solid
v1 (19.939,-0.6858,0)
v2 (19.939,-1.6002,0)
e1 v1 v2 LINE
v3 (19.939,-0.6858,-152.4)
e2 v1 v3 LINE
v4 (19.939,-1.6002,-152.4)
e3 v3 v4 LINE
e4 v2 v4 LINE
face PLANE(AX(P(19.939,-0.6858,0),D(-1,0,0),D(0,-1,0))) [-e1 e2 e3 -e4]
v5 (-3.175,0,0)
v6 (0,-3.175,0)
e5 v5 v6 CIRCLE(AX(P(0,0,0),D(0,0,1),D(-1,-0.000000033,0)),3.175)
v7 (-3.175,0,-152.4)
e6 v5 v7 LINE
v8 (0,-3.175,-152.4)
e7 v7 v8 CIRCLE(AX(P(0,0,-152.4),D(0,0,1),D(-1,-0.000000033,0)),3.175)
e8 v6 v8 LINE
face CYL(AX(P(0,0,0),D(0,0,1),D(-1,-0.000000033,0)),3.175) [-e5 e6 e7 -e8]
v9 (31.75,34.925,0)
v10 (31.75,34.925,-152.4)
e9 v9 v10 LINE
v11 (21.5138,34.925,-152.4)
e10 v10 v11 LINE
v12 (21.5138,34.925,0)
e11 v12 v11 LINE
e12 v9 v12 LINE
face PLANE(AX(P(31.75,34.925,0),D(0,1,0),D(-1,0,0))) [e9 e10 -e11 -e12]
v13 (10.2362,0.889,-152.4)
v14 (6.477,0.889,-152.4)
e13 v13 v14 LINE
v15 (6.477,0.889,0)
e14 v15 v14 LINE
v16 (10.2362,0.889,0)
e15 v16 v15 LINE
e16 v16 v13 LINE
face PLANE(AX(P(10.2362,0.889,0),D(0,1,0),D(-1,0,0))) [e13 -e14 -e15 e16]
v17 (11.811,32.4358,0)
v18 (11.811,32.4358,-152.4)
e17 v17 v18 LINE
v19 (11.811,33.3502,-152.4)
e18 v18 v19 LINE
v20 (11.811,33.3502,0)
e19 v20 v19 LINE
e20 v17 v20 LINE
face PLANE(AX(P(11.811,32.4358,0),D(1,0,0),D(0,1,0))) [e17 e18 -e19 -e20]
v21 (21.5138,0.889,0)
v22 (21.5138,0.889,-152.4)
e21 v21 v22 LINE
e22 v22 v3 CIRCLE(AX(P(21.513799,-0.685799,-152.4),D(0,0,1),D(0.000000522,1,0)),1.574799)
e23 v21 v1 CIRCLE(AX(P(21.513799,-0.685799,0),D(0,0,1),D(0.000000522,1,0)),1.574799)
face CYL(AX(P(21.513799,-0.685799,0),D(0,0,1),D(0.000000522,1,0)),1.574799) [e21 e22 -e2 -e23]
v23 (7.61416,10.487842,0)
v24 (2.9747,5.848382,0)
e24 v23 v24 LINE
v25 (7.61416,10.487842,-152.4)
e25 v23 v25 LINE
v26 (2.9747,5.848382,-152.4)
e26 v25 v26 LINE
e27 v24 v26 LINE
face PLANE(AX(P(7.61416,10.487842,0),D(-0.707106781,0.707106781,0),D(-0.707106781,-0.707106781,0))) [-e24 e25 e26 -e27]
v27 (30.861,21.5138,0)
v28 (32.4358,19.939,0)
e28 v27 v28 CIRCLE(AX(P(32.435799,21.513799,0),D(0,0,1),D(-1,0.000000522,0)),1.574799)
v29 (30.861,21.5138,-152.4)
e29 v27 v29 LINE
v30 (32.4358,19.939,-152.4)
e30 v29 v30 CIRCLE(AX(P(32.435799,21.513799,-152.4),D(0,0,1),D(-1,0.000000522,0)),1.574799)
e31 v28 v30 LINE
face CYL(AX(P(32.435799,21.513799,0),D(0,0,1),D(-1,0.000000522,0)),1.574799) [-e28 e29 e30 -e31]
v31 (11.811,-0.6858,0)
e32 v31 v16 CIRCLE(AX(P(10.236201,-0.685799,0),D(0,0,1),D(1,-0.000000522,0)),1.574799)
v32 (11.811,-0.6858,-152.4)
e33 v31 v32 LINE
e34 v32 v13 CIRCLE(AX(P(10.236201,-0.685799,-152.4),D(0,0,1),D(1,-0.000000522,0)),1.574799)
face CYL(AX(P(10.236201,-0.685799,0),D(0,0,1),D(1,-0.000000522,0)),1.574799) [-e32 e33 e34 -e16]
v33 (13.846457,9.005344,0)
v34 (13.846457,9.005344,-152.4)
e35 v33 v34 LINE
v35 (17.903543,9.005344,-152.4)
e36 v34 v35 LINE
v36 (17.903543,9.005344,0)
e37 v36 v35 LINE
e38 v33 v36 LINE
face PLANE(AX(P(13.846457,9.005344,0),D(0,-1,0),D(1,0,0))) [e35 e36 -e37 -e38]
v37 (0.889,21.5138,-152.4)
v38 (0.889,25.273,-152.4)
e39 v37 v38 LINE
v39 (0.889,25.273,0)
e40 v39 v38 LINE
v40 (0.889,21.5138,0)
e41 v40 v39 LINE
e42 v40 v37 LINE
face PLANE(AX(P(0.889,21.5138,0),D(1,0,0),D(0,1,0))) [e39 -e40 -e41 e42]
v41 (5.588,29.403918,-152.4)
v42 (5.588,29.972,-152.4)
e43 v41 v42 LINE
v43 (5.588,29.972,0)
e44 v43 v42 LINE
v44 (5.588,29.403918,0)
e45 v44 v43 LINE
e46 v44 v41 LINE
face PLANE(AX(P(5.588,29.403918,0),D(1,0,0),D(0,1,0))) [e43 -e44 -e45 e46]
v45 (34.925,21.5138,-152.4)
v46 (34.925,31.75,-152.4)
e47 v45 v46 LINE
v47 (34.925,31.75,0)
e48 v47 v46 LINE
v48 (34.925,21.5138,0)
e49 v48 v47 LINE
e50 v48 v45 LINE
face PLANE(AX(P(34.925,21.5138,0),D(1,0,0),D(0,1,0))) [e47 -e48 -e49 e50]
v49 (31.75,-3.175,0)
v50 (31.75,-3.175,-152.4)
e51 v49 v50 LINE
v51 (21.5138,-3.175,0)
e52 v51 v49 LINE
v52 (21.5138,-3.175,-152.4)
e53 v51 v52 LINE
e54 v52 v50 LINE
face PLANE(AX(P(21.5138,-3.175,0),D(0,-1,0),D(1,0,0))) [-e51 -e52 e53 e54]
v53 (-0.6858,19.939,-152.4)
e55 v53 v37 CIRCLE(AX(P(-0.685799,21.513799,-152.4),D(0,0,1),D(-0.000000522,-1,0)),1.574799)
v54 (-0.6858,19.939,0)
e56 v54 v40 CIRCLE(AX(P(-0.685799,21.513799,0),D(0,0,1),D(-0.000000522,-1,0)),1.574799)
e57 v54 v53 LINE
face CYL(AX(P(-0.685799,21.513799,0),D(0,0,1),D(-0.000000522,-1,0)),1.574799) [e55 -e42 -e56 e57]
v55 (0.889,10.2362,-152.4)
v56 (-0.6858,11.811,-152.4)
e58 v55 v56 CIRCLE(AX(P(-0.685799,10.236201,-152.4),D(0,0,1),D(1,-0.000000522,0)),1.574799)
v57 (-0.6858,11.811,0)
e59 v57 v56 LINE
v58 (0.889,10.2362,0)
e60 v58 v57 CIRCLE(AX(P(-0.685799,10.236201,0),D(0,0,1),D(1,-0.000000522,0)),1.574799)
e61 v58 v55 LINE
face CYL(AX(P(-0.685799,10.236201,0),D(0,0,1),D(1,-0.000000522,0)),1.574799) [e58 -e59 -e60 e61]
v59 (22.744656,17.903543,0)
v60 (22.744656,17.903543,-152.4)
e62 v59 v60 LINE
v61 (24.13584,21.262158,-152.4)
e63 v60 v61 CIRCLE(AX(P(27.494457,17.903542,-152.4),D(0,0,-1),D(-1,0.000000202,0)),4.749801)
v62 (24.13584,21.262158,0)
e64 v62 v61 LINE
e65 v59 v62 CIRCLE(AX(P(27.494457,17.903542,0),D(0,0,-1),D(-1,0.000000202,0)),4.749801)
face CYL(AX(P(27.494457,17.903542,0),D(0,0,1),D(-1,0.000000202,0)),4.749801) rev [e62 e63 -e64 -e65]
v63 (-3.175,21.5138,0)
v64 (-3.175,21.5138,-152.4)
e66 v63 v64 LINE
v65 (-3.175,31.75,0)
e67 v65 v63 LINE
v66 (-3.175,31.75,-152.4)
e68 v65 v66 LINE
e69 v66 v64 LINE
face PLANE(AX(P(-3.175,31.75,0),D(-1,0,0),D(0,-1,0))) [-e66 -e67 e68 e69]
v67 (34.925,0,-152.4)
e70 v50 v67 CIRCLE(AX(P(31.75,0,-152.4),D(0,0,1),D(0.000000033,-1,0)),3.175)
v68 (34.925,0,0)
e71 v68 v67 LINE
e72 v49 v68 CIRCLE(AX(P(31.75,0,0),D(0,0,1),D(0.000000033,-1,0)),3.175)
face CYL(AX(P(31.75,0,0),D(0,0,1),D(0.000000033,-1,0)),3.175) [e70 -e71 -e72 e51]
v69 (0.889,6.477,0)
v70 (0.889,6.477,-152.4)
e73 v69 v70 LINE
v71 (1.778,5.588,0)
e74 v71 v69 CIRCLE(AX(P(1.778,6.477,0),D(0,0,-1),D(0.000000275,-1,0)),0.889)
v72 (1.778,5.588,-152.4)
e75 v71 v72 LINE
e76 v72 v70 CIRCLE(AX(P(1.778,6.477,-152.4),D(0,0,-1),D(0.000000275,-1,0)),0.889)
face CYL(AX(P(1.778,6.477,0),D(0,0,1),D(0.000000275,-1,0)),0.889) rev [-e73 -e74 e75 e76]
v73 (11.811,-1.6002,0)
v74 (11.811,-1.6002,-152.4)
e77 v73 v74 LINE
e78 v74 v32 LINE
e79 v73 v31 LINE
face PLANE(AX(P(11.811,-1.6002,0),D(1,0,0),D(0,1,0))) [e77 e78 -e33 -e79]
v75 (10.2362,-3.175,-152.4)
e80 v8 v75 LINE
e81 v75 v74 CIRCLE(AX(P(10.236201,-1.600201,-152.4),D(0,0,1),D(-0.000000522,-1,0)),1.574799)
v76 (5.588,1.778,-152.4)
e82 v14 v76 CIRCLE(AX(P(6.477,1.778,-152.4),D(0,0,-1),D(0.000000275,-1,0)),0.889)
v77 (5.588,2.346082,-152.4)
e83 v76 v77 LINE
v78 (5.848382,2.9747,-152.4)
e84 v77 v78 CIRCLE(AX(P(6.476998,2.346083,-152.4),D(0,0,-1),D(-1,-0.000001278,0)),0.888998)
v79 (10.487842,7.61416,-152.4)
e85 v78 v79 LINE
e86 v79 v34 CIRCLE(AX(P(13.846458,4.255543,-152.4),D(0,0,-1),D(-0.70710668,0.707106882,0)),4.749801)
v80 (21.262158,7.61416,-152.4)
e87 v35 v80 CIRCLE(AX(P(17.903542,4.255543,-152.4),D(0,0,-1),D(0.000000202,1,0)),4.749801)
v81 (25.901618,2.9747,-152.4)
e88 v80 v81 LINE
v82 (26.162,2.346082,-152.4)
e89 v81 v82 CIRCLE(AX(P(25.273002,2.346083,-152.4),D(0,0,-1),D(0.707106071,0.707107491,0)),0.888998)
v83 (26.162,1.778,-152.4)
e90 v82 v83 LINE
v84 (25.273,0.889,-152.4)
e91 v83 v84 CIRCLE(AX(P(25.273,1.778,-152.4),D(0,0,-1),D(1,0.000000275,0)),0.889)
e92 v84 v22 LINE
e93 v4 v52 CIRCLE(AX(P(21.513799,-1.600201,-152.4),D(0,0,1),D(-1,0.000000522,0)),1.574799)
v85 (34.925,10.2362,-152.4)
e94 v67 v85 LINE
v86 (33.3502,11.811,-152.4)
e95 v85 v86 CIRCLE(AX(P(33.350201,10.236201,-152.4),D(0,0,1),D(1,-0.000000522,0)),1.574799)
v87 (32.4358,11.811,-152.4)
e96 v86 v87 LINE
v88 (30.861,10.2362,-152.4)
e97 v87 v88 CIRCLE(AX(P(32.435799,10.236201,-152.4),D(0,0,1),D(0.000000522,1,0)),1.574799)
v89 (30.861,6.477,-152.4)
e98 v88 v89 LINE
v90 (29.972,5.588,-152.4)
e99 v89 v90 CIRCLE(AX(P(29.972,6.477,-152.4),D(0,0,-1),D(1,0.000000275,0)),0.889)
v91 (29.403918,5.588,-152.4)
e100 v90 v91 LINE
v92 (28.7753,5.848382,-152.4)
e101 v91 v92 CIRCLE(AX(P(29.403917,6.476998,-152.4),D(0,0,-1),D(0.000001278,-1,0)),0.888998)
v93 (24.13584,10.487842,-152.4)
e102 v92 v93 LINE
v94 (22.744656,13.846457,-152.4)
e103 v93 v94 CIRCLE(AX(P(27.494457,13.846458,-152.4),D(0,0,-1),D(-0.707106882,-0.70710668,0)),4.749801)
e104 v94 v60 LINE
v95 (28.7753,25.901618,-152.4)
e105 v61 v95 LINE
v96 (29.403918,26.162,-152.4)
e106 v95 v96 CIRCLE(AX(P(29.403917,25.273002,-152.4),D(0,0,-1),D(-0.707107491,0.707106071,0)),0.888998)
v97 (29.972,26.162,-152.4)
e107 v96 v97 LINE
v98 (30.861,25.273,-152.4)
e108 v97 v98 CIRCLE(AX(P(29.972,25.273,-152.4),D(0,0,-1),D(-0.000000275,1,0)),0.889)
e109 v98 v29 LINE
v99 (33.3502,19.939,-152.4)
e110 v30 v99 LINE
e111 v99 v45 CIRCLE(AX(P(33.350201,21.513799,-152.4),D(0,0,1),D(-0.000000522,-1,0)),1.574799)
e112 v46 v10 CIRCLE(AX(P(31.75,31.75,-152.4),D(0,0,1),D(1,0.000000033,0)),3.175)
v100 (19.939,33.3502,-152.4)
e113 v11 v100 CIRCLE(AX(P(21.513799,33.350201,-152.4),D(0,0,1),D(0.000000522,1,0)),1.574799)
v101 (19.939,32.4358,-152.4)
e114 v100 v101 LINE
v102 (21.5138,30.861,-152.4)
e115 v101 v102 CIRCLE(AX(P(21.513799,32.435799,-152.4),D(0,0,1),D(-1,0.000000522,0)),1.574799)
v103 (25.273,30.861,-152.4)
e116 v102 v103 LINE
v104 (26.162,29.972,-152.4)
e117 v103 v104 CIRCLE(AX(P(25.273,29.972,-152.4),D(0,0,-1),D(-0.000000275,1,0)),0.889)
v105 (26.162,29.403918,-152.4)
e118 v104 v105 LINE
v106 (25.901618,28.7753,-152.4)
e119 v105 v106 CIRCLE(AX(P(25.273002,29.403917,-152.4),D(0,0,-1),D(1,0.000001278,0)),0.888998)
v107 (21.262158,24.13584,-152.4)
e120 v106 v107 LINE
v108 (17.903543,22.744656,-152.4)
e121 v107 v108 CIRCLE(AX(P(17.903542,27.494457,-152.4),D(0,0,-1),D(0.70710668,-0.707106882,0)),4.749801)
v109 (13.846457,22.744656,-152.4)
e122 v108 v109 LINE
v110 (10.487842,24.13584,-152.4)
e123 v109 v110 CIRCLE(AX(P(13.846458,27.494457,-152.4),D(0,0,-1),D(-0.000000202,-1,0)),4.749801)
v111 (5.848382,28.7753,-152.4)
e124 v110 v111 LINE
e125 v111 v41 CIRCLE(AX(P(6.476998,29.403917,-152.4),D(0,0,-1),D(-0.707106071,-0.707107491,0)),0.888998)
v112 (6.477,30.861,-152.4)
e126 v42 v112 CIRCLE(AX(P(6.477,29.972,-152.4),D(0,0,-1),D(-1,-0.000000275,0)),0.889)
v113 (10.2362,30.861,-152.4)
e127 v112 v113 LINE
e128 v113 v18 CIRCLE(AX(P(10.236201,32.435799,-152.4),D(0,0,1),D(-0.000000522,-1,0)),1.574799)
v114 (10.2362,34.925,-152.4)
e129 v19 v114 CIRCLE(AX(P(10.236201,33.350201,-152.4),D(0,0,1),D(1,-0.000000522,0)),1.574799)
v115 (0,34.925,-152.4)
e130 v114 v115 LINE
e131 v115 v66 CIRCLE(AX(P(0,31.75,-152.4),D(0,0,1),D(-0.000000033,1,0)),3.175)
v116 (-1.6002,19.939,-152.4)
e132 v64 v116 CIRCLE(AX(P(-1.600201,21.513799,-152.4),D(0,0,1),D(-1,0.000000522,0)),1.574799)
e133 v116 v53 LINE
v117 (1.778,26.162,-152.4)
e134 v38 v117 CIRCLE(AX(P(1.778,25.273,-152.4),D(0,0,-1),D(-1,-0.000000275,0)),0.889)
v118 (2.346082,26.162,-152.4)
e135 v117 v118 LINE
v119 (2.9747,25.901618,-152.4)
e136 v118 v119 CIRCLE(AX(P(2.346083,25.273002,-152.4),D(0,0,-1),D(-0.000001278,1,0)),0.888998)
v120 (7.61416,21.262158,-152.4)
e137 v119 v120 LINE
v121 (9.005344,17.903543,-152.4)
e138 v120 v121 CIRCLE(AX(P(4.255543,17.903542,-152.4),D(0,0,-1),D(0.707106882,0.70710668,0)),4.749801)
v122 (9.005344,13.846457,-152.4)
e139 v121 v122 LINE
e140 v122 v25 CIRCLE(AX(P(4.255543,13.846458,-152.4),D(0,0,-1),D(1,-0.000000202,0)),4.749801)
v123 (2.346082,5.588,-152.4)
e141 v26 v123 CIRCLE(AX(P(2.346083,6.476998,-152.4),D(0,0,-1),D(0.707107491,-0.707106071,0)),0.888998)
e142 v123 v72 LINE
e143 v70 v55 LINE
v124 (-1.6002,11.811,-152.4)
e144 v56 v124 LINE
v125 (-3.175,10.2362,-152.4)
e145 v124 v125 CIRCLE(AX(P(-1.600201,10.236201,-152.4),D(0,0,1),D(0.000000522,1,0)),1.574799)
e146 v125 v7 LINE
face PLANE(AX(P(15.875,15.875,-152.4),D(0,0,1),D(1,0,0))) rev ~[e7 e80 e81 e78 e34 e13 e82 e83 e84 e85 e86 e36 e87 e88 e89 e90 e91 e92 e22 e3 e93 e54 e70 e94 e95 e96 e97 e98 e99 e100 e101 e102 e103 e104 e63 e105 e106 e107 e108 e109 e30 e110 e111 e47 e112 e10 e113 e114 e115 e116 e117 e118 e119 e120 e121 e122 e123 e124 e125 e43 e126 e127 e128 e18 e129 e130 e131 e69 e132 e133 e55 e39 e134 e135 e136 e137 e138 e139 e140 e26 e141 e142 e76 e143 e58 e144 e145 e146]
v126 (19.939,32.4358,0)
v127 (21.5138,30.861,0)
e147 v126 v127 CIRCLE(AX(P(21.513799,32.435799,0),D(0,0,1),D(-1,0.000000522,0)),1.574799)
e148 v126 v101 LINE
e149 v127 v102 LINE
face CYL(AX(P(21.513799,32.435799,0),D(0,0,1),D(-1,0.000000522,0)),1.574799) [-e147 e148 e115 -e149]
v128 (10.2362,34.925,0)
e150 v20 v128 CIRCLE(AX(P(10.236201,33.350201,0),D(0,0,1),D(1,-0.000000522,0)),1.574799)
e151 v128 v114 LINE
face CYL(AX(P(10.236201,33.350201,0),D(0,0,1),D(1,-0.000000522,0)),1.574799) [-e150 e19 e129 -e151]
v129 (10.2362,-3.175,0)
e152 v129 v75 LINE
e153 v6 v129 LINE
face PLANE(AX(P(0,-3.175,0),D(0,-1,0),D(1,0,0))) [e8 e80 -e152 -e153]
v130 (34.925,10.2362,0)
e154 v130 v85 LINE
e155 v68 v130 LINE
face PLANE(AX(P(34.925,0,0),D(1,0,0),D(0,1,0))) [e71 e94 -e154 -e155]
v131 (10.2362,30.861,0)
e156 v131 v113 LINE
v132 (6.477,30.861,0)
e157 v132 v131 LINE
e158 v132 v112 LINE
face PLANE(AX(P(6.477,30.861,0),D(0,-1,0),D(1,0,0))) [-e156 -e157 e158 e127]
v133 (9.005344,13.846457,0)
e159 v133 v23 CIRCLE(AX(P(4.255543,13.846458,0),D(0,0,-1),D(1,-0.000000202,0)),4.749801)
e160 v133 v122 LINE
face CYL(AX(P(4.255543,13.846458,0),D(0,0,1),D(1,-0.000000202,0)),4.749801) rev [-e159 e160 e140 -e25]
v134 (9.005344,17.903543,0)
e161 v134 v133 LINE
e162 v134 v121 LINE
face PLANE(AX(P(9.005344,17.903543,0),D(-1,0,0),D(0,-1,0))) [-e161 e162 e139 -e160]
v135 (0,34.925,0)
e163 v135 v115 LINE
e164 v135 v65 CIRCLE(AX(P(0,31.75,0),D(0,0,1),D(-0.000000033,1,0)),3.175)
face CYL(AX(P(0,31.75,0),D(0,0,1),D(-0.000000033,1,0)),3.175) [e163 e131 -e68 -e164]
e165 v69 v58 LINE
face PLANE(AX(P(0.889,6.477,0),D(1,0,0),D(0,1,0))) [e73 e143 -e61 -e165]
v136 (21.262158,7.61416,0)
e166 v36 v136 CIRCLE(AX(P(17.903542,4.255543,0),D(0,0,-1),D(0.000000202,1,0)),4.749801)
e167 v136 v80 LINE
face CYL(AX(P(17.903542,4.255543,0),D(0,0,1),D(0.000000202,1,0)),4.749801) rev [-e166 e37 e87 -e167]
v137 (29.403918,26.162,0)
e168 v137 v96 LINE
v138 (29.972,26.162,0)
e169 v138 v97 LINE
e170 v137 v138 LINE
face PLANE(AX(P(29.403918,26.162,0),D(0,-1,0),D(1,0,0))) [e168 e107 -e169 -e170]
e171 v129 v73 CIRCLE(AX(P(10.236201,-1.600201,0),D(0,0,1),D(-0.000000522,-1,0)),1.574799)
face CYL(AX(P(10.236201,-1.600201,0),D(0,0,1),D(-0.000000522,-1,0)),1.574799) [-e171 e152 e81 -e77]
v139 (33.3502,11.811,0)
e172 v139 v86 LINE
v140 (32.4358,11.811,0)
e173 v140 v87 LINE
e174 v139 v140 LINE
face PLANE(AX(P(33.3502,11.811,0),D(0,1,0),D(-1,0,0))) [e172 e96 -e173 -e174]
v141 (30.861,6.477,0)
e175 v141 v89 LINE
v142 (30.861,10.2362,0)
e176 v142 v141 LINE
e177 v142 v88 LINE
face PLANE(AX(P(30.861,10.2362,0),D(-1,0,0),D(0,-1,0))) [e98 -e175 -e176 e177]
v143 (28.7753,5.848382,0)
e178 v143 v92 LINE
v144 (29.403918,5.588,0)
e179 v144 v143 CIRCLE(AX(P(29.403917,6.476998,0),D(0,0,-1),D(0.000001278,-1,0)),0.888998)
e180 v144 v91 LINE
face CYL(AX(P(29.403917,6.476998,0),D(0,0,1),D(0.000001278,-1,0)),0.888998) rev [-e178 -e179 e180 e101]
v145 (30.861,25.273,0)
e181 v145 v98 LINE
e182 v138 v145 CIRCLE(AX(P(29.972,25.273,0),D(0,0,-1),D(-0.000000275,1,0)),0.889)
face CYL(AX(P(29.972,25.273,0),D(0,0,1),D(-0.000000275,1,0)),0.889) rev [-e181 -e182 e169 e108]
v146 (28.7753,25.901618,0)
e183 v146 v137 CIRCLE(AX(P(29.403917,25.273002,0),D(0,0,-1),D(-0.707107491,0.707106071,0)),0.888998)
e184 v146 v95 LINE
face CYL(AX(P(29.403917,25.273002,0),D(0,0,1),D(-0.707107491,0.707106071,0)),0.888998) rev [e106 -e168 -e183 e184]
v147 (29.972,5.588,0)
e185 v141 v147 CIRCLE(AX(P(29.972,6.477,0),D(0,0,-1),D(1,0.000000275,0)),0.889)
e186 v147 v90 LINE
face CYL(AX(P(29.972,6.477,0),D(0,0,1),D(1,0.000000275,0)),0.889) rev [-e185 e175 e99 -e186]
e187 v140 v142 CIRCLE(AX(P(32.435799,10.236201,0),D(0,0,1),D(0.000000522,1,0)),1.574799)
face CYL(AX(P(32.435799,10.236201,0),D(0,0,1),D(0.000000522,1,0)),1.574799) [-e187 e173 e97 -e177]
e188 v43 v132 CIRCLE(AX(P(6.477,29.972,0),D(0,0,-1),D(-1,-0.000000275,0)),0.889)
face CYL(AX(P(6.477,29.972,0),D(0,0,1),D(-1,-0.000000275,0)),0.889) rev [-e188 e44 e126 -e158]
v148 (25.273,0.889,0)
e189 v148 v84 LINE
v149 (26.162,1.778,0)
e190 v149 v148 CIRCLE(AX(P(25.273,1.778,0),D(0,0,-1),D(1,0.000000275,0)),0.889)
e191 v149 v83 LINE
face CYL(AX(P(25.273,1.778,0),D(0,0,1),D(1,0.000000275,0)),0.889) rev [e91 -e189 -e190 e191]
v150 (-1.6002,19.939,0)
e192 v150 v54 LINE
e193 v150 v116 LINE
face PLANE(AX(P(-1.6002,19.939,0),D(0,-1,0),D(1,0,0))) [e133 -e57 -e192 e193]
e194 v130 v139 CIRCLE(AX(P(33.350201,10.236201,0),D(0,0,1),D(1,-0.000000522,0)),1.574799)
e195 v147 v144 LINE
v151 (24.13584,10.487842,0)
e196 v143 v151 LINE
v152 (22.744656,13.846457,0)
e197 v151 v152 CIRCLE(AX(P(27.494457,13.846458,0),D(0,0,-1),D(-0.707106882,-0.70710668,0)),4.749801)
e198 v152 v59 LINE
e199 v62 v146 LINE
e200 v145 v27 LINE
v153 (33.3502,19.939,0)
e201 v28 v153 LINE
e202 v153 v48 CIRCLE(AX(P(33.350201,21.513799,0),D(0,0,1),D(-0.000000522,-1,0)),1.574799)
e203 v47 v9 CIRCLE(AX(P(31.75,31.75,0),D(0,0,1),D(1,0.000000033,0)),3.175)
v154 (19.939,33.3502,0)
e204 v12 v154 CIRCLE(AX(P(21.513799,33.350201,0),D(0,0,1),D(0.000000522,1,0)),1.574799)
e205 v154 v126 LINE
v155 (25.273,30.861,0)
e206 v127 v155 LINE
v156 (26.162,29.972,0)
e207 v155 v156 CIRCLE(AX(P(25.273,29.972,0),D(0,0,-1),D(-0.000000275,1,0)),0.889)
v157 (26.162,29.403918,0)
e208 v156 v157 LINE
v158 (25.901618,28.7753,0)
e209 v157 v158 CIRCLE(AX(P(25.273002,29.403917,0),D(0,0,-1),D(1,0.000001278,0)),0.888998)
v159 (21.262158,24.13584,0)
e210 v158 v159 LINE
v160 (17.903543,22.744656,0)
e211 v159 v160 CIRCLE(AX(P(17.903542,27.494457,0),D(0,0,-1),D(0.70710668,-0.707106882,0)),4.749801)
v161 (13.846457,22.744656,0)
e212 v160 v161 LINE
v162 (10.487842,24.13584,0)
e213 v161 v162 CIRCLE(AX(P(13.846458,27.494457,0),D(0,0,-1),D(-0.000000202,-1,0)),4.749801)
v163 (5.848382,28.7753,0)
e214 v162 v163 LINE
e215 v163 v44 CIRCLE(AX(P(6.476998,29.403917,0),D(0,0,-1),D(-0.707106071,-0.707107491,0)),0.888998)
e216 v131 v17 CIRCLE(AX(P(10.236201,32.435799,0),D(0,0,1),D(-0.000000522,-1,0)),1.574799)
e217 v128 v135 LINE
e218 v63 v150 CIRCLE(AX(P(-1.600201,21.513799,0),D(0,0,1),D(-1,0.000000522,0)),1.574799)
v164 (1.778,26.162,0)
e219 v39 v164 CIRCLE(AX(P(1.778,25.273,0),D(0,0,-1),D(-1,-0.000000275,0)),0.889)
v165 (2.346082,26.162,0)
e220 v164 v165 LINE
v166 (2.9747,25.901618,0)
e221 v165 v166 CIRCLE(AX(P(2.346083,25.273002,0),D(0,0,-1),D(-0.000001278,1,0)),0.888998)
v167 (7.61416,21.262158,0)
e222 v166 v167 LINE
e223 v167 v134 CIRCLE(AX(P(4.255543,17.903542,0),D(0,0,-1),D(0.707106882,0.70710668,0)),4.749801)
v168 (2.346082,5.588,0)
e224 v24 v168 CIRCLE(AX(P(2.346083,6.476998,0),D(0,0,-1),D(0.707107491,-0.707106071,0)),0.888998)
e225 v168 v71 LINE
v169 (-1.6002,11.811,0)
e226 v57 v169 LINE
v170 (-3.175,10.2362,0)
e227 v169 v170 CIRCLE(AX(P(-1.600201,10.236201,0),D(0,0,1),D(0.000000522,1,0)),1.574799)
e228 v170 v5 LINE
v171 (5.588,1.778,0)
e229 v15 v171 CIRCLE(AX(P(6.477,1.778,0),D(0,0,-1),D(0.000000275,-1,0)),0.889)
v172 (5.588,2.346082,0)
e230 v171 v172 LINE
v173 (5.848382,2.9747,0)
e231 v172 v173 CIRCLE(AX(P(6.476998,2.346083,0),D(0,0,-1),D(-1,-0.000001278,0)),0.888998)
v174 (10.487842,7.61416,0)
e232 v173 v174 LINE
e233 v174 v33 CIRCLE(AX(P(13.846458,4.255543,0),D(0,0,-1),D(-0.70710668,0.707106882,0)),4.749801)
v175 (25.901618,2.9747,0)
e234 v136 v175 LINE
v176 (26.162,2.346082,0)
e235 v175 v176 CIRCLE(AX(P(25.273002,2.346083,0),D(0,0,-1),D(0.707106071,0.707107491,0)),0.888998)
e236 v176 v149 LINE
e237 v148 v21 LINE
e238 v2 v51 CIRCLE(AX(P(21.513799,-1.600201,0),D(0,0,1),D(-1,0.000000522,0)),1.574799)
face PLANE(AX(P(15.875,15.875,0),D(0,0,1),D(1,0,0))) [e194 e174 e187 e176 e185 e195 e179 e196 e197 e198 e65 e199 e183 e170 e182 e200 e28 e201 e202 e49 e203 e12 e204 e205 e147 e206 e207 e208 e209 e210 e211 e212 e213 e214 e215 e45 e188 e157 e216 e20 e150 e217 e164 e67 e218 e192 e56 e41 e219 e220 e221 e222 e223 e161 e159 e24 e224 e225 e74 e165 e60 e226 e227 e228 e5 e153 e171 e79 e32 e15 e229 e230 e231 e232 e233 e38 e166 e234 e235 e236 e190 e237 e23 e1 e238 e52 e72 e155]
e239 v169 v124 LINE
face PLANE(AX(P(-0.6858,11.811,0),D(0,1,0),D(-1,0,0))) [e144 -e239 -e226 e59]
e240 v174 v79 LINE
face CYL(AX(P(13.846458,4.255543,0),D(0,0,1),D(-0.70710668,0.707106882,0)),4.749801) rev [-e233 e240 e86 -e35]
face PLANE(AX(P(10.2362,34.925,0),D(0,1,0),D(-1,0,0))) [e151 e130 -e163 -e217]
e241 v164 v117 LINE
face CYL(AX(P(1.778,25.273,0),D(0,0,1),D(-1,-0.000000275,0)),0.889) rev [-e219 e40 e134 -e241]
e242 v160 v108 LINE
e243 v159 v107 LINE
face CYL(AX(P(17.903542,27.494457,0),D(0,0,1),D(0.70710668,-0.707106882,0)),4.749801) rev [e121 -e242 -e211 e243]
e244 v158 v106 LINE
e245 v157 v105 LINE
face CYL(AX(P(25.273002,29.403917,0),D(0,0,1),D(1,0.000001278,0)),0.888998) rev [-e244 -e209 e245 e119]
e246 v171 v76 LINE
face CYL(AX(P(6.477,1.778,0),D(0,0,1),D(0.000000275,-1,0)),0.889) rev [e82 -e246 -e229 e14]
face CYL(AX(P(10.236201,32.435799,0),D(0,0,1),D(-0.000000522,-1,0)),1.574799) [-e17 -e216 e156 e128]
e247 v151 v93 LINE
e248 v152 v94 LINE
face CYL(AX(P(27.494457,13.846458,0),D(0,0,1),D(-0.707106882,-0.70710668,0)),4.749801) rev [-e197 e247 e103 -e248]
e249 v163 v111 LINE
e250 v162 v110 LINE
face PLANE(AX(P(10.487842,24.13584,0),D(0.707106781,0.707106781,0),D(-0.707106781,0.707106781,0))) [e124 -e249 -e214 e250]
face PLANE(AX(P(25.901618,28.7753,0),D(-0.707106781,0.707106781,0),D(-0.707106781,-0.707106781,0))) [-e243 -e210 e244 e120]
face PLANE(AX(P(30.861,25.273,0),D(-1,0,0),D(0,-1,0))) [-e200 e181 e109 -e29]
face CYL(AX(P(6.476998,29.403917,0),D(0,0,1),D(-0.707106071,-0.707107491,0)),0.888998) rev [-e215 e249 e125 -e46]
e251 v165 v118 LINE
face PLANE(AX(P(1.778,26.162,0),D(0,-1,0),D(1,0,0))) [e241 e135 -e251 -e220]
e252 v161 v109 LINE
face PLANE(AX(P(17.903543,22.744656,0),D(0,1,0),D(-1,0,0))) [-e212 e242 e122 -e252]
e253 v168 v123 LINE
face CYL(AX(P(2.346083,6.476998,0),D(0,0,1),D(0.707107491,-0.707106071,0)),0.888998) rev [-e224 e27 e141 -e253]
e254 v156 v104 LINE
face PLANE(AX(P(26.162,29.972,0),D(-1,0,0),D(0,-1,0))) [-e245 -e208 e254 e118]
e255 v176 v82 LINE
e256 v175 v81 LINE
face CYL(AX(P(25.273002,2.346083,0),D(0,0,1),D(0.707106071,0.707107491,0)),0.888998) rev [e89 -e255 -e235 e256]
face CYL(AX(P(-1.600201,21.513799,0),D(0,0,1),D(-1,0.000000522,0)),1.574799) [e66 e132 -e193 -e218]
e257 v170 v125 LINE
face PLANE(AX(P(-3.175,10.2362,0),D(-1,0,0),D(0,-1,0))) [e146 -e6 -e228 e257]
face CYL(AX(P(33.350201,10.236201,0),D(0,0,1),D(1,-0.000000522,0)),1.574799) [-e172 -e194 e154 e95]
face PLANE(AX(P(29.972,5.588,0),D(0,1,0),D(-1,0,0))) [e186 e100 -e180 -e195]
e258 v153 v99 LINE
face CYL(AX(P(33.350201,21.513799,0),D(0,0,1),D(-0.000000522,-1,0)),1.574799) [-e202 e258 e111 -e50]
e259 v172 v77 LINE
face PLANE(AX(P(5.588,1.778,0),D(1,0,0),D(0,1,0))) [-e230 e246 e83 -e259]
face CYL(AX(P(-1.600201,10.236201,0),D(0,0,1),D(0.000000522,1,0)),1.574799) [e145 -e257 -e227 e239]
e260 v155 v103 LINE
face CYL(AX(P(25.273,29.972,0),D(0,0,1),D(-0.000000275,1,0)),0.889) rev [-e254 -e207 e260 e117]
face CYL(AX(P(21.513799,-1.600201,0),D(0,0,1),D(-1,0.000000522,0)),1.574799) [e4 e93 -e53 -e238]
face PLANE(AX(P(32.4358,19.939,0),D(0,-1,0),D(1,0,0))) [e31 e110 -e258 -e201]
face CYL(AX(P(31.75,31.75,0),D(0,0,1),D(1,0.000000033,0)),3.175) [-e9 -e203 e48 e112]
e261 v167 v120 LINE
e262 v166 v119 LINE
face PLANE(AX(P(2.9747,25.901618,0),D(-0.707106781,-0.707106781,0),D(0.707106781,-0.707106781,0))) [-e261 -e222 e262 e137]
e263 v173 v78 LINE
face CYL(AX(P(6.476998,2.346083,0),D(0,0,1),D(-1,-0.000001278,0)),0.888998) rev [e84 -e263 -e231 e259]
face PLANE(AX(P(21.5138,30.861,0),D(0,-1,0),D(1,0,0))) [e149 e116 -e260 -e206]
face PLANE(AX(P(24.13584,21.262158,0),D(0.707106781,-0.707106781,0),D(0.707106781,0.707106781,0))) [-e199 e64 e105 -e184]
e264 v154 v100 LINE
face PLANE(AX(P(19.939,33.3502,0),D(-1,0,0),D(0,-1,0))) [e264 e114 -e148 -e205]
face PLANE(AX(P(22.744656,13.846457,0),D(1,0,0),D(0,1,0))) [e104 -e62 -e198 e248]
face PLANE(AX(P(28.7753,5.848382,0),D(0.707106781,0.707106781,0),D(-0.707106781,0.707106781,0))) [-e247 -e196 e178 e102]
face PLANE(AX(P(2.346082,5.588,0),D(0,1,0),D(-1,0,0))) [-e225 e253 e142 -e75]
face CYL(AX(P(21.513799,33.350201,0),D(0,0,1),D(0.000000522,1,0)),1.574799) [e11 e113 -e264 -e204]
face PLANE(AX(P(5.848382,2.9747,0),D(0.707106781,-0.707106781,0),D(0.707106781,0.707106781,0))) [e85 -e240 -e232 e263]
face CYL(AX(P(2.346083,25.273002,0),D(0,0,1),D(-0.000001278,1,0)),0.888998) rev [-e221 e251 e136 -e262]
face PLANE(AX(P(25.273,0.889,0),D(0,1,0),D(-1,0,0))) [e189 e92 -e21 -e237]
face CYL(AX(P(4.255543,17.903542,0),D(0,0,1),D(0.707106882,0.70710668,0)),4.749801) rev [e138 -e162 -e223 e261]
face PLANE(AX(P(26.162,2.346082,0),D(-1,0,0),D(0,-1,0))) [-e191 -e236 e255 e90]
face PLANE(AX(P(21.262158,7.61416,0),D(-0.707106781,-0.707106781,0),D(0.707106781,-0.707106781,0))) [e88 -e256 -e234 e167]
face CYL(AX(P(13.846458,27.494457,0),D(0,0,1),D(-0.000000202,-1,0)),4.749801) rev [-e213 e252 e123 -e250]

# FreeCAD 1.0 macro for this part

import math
import FreeCAD as App
import Part
import Sketcher
from FreeCAD import Vector
Q = App.Units.Quantity

doc = App.newDocument("Part")
body = doc.addObject("PartDesign::Body", "Body")

# Sketch on XY plane
sketch1 = body.newObject("Sketcher::SketchObject", "Sketch")
sketch1.AttachmentSupport = (doc.getObject("XY_Plane"), [""])
sketch1.MapMode = "FlatFace"
sketch1.addGeometry(Part.ArcOfCircle(Part.Circle(Vector(0, 31.7, 0), Vector(0, 0, 1), 3.2), math.radians(90), math.radians(180)), False)
sketch1.addGeometry(Part.LineSegment(Vector(-3.2, 31.8, 0), Vector(-3.2, 21.5, 0)), False)
sketch1.addGeometry(Part.ArcOfCircle(Part.Circle(Vector(-1.6, 21.5, 0), Vector(0, 0, 1), 1.6), math.radians(180), math.radians(270)), False)
sketch1.addGeometry(Part.LineSegment(Vector(-1.6, 19.9, 0), Vector(-0.7, 19.9, 0)), False)
sketch1.addGeometry(Part.ArcOfCircle(Part.Circle(Vector(-0.7, 21.5, 0), Vector(0, 0, 1), 1.6), math.radians(-90), math.radians(0)), False)
sketch1.addGeometry(Part.LineSegment(Vector(0.9, 21.5, 0), Vector(0.9, 25.3, 0)), False)
sketch1.addGeometry(Part.ArcOfCircle(Part.Circle(Vector(1.8, 25.3, 0), Vector(0, 0, 1), 0.9), math.radians(90), math.radians(180)), False)
sketch1.addGeometry(Part.LineSegment(Vector(1.8, 26.2, 0), Vector(2.3, 26.2, 0)), False)
sketch1.addGeometry(Part.ArcOfCircle(Part.Circle(Vector(2.3, 25.3, 0), Vector(0, 0, 1), 0.9), math.radians(45), math.radians(90)), False)
sketch1.addGeometry(Part.LineSegment(Vector(3, 25.9, 0), Vector(7.6, 21.3, 0)), False)
sketch1.addGeometry(Part.ArcOfCircle(Part.Circle(Vector(4.3, 17.9, 0), Vector(0, 0, 1), 4.7), math.radians(0), math.radians(45)), False)
sketch1.addGeometry(Part.LineSegment(Vector(9, 17.9, 0), Vector(9, 13.8, 0)), False)
sketch1.addGeometry(Part.ArcOfCircle(Part.Circle(Vector(4.3, 13.8, 0), Vector(0, 0, 1), 4.7), math.radians(-45), math.radians(0)), False)
sketch1.addGeometry(Part.LineSegment(Vector(7.6, 10.5, 0), Vector(3, 5.8, 0)), False)
sketch1.addGeometry(Part.ArcOfCircle(Part.Circle(Vector(2.3, 6.5, 0), Vector(0, 0, 1), 0.9), math.radians(-90), math.radians(-45)), False)
sketch1.addGeometry(Part.LineSegment(Vector(2.3, 5.6, 0), Vector(1.8, 5.6, 0)), False)
sketch1.addGeometry(Part.ArcOfCircle(Part.Circle(Vector(1.8, 6.5, 0), Vector(0, 0, 1), 0.9), math.radians(180), math.radians(270)), False)
sketch1.addGeometry(Part.LineSegment(Vector(0.9, 6.5, 0), Vector(0.9, 10.2, 0)), False)
sketch1.addGeometry(Part.ArcOfCircle(Part.Circle(Vector(-0.7, 10.2, 0), Vector(0, 0, 1), 1.6), math.radians(0), math.radians(90)), False)
sketch1.addGeometry(Part.LineSegment(Vector(-0.7, 11.8, 0), Vector(-1.6, 11.8, 0)), False)
sketch1.addGeometry(Part.ArcOfCircle(Part.Circle(Vector(-1.6, 10.2, 0), Vector(0, 0, 1), 1.6), math.radians(90), math.radians(180)), False)
sketch1.addGeometry(Part.LineSegment(Vector(-3.2, 10.2, 0), Vector(-3.2, 0, 0)), False)
sketch1.addGeometry(Part.ArcOfCircle(Part.Circle(Vector(0, 0, 0), Vector(0, 0, 1), 3.2), math.radians(-180), math.radians(-90)), False)
sketch1.addGeometry(Part.LineSegment(Vector(0, -3.2, 0), Vector(10.2, -3.2, 0)), False)
sketch1.addGeometry(Part.ArcOfCircle(Part.Circle(Vector(10.2, -1.6, 0), Vector(0, 0, 1), 1.6), math.radians(-90), math.radians(0)), False)
sketch1.addGeometry(Part.LineSegment(Vector(11.8, -1.6, 0), Vector(11.8, -0.7, 0)), False)
sketch1.addGeometry(Part.ArcOfCircle(Part.Circle(Vector(10.2, -0.7, 0), Vector(0, 0, 1), 1.6), math.radians(0), math.radians(90)), False)
sketch1.addGeometry(Part.LineSegment(Vector(10.2, 0.9, 0), Vector(6.5, 0.9, 0)), False)
sketch1.addGeometry(Part.ArcOfCircle(Part.Circle(Vector(6.5, 1.8, 0), Vector(0, 0, 1), 0.9), math.radians(180), math.radians(270)), False)
sketch1.addGeometry(Part.LineSegment(Vector(5.6, 1.8, 0), Vector(5.6, 2.3, 0)), False)
sketch1.addGeometry(Part.ArcOfCircle(Part.Circle(Vector(6.5, 2.3, 0), Vector(0, 0, 1), 0.9), math.radians(135), math.radians(180)), False)
sketch1.addGeometry(Part.LineSegment(Vector(5.8, 3, 0), Vector(10.5, 7.6, 0)), False)
sketch1.addGeometry(Part.ArcOfCircle(Part.Circle(Vector(13.8, 4.3, 0), Vector(0, 0, 1), 4.7), math.radians(90), math.radians(135)), False)
sketch1.addGeometry(Part.LineSegment(Vector(13.8, 9, 0), Vector(17.9, 9, 0)), False)
sketch1.addGeometry(Part.ArcOfCircle(Part.Circle(Vector(17.9, 4.3, 0), Vector(0, 0, 1), 4.7), math.radians(45), math.radians(90)), False)
sketch1.addGeometry(Part.LineSegment(Vector(21.3, 7.6, 0), Vector(25.9, 3, 0)), False)
sketch1.addGeometry(Part.ArcOfCircle(Part.Circle(Vector(25.3, 2.3, 0), Vector(0, 0, 1), 0.9), math.radians(0), math.radians(45)), False)
sketch1.addGeometry(Part.LineSegment(Vector(26.2, 2.3, 0), Vector(26.2, 1.8, 0)), False)
sketch1.addGeometry(Part.ArcOfCircle(Part.Circle(Vector(25.3, 1.8, 0), Vector(0, 0, 1), 0.9), math.radians(-90), math.radians(0)), False)
sketch1.addGeometry(Part.LineSegment(Vector(25.3, 0.9, 0), Vector(21.5, 0.9, 0)), False)
sketch1.addGeometry(Part.ArcOfCircle(Part.Circle(Vector(21.5, -0.7, 0), Vector(0, 0, 1), 1.6), math.radians(90), math.radians(180)), False)
sketch1.addGeometry(Part.LineSegment(Vector(19.9, -0.7, 0), Vector(19.9, -1.6, 0)), False)
sketch1.addGeometry(Part.ArcOfCircle(Part.Circle(Vector(21.5, -1.6, 0), Vector(0, 0, 1), 1.6), math.radians(180), math.radians(270)), False)
sketch1.addGeometry(Part.LineSegment(Vector(21.5, -3.2, 0), Vector(31.8, -3.2, 0)), False)
sketch1.addGeometry(Part.ArcOfCircle(Part.Circle(Vector(31.7, 0, 0), Vector(0, 0, 1), 3.2), math.radians(-90), math.radians(0)), False)
sketch1.addGeometry(Part.LineSegment(Vector(34.9, 0, 0), Vector(34.9, 10.2, 0)), False)
sketch1.addGeometry(Part.ArcOfCircle(Part.Circle(Vector(33.4, 10.2, 0), Vector(0, 0, 1), 1.6), math.radians(0), math.radians(90)), False)
sketch1.addGeometry(Part.LineSegment(Vector(33.4, 11.8, 0), Vector(32.4, 11.8, 0)), False)
sketch1.addGeometry(Part.ArcOfCircle(Part.Circle(Vector(32.4, 10.2, 0), Vector(0, 0, 1), 1.6), math.radians(90), math.radians(180)), False)
sketch1.addGeometry(Part.LineSegment(Vector(30.9, 10.2, 0), Vector(30.9, 6.5, 0)), False)
sketch1.addGeometry(Part.ArcOfCircle(Part.Circle(Vector(30, 6.5, 0), Vector(0, 0, 1), 0.9), math.radians(-90), math.radians(0)), False)
sketch1.addGeometry(Part.LineSegment(Vector(30, 5.6, 0), Vector(29.4, 5.6, 0)), False)
sketch1.addGeometry(Part.ArcOfCircle(Part.Circle(Vector(29.4, 6.5, 0), Vector(0, 0, 1), 0.9), math.radians(-135), math.radians(-90)), False)
sketch1.addGeometry(Part.LineSegment(Vector(28.8, 5.8, 0), Vector(24.1, 10.5, 0)), False)
sketch1.addGeometry(Part.ArcOfCircle(Part.Circle(Vector(27.5, 13.8, 0), Vector(0, 0, 1), 4.7), math.radians(-180), math.radians(-135)), False)
sketch1.addGeometry(Part.LineSegment(Vector(22.7, 13.8, 0), Vector(22.7, 17.9, 0)), False)
sketch1.addGeometry(Part.ArcOfCircle(Part.Circle(Vector(27.5, 17.9, 0), Vector(0, 0, 1), 4.7), math.radians(135), math.radians(180)), False)
sketch1.addGeometry(Part.LineSegment(Vector(24.1, 21.3, 0), Vector(28.8, 25.9, 0)), False)
sketch1.addGeometry(Part.ArcOfCircle(Part.Circle(Vector(29.4, 25.3, 0), Vector(0, 0, 1), 0.9), math.radians(90), math.radians(135)), False)
sketch1.addGeometry(Part.LineSegment(Vector(29.4, 26.2, 0), Vector(30, 26.2, 0)), False)
sketch1.addGeometry(Part.ArcOfCircle(Part.Circle(Vector(30, 25.3, 0), Vector(0, 0, 1), 0.9), math.radians(0), math.radians(90)), False)
sketch1.addGeometry(Part.LineSegment(Vector(30.9, 25.3, 0), Vector(30.9, 21.5, 0)), False)
sketch1.addGeometry(Part.ArcOfCircle(Part.Circle(Vector(32.4, 21.5, 0), Vector(0, 0, 1), 1.6), math.radians(180), math.radians(270)), False)
sketch1.addGeometry(Part.LineSegment(Vector(32.4, 19.9, 0), Vector(33.4, 19.9, 0)), False)
sketch1.addGeometry(Part.ArcOfCircle(Part.Circle(Vector(33.4, 21.5, 0), Vector(0, 0, 1), 1.6), math.radians(-90), math.radians(0)), False)
sketch1.addGeometry(Part.LineSegment(Vector(34.9, 21.5, 0), Vector(34.9, 31.8, 0)), False)
sketch1.addGeometry(Part.ArcOfCircle(Part.Circle(Vector(31.7, 31.7, 0), Vector(0, 0, 1), 3.2), math.radians(0), math.radians(90)), False)
sketch1.addGeometry(Part.LineSegment(Vector(31.8, 34.9, 0), Vector(21.5, 34.9, 0)), False)
sketch1.addGeometry(Part.ArcOfCircle(Part.Circle(Vector(21.5, 33.4, 0), Vector(0, 0, 1), 1.6), math.radians(90), math.radians(180)), False)
sketch1.addGeometry(Part.LineSegment(Vector(19.9, 33.4, 0), Vector(19.9, 32.4, 0)), False)
sketch1.addGeometry(Part.ArcOfCircle(Part.Circle(Vector(21.5, 32.4, 0), Vector(0, 0, 1), 1.6), math.radians(180), math.radians(270)), False)
sketch1.addGeometry(Part.LineSegment(Vector(21.5, 30.9, 0), Vector(25.3, 30.9, 0)), False)
sketch1.addGeometry(Part.ArcOfCircle(Part.Circle(Vector(25.3, 30, 0), Vector(0, 0, 1), 0.9), math.radians(0), math.radians(90)), False)
sketch1.addGeometry(Part.LineSegment(Vector(26.2, 30, 0), Vector(26.2, 29.4, 0)), False)
sketch1.addGeometry(Part.ArcOfCircle(Part.Circle(Vector(25.3, 29.4, 0), Vector(0, 0, 1), 0.9), math.radians(-45), math.radians(0)), False)
sketch1.addGeometry(Part.LineSegment(Vector(25.9, 28.8, 0), Vector(21.3, 24.1, 0)), False)
sketch1.addGeometry(Part.ArcOfCircle(Part.Circle(Vector(17.9, 27.5, 0), Vector(0, 0, 1), 4.7), math.radians(-90), math.radians(-45)), False)
sketch1.addGeometry(Part.LineSegment(Vector(17.9, 22.7, 0), Vector(13.8, 22.7, 0)), False)
sketch1.addGeometry(Part.ArcOfCircle(Part.Circle(Vector(13.8, 27.5, 0), Vector(0, 0, 1), 4.7), math.radians(-135), math.radians(-90)), False)
sketch1.addGeometry(Part.LineSegment(Vector(10.5, 24.1, 0), Vector(5.8, 28.8, 0)), False)
sketch1.addGeometry(Part.ArcOfCircle(Part.Circle(Vector(6.5, 29.4, 0), Vector(0, 0, 1), 0.9), math.radians(180), math.radians(225)), False)
sketch1.addGeometry(Part.LineSegment(Vector(5.6, 29.4, 0), Vector(5.6, 30, 0)), False)
sketch1.addGeometry(Part.ArcOfCircle(Part.Circle(Vector(6.5, 30, 0), Vector(0, 0, 1), 0.9), math.radians(90), math.radians(180)), False)
sketch1.addGeometry(Part.LineSegment(Vector(6.5, 30.9, 0), Vector(10.2, 30.9, 0)), False)
sketch1.addGeometry(Part.ArcOfCircle(Part.Circle(Vector(10.2, 32.4, 0), Vector(0, 0, 1), 1.6), math.radians(-90), math.radians(0)), False)
sketch1.addGeometry(Part.LineSegment(Vector(11.8, 32.4, 0), Vector(11.8, 33.4, 0)), False)
sketch1.addGeometry(Part.ArcOfCircle(Part.Circle(Vector(10.2, 33.4, 0), Vector(0, 0, 1), 1.6), math.radians(0), math.radians(90)), False)
sketch1.addGeometry(Part.LineSegment(Vector(10.2, 34.9, 0), Vector(0, 34.9, 0)), False)
sketch1.addConstraint(Sketcher.Constraint("Tangent", 0, 2, 1, 1))
sketch1.addConstraint(Sketcher.Constraint("Tangent", 1, 2, 2, 1))
sketch1.addConstraint(Sketcher.Constraint("Tangent", 2, 2, 3, 1))
sketch1.addConstraint(Sketcher.Constraint("Tangent", 3, 2, 4, 1))
sketch1.addConstraint(Sketcher.Constraint("Tangent", 4, 2, 5, 1))
sketch1.addConstraint(Sketcher.Constraint("Tangent", 5, 2, 6, 2))
sketch1.addConstraint(Sketcher.Constraint("Tangent", 6, 1, 7, 1))
sketch1.addConstraint(Sketcher.Constraint("Tangent", 7, 2, 8, 2))
sketch1.addConstraint(Sketcher.Constraint("Tangent", 8, 1, 9, 1))
sketch1.addConstraint(Sketcher.Constraint("Tangent", 9, 2, 10, 2))
sketch1.addConstraint(Sketcher.Constraint("Tangent", 10, 1, 11, 1))
sketch1.addConstraint(Sketcher.Constraint("Tangent", 11, 2, 12, 2))
sketch1.addConstraint(Sketcher.Constraint("Tangent", 12, 1, 13, 1))
sketch1.addConstraint(Sketcher.Constraint("Tangent", 13, 2, 14, 2))
sketch1.addConstraint(Sketcher.Constraint("Tangent", 14, 1, 15, 1))
sketch1.addConstraint(Sketcher.Constraint("Tangent", 15, 2, 16, 2))
sketch1.addConstraint(Sketcher.Constraint("Tangent", 16, 1, 17, 1))
sketch1.addConstraint(Sketcher.Constraint("Tangent", 17, 2, 18, 1))
sketch1.addConstraint(Sketcher.Constraint("Tangent", 18, 2, 19, 1))
sketch1.addConstraint(Sketcher.Constraint("Tangent", 19, 2, 20, 1))
sketch1.addConstraint(Sketcher.Constraint("Tangent", 20, 2, 21, 1))
sketch1.addConstraint(Sketcher.Constraint("Tangent", 21, 2, 22, 1))
sketch1.addConstraint(Sketcher.Constraint("Tangent", 22, 2, 23, 1))
sketch1.addConstraint(Sketcher.Constraint("Tangent", 23, 2, 24, 1))
sketch1.addConstraint(Sketcher.Constraint("Tangent", 24, 2, 25, 1))
sketch1.addConstraint(Sketcher.Constraint("Tangent", 25, 2, 26, 1))
sketch1.addConstraint(Sketcher.Constraint("Tangent", 26, 2, 27, 1))
sketch1.addConstraint(Sketcher.Constraint("Tangent", 27, 2, 28, 2))
sketch1.addConstraint(Sketcher.Constraint("Tangent", 28, 1, 29, 1))
sketch1.addConstraint(Sketcher.Constraint("Tangent", 29, 2, 30, 2))
sketch1.addConstraint(Sketcher.Constraint("Tangent", 30, 1, 31, 1))
sketch1.addConstraint(Sketcher.Constraint("Tangent", 31, 2, 32, 2))
sketch1.addConstraint(Sketcher.Constraint("Tangent", 32, 1, 33, 1))
sketch1.addConstraint(Sketcher.Constraint("Tangent", 33, 2, 34, 2))
sketch1.addConstraint(Sketcher.Constraint("Tangent", 34, 1, 35, 1))
sketch1.addConstraint(Sketcher.Constraint("Tangent", 35, 2, 36, 2))
sketch1.addConstraint(Sketcher.Constraint("Tangent", 36, 1, 37, 1))
sketch1.addConstraint(Sketcher.Constraint("Tangent", 37, 2, 38, 2))
sketch1.addConstraint(Sketcher.Constraint("Tangent", 38, 1, 39, 1))
sketch1.addConstraint(Sketcher.Constraint("Tangent", 39, 2, 40, 1))
sketch1.addConstraint(Sketcher.Constraint("Tangent", 40, 2, 41, 1))
sketch1.addConstraint(Sketcher.Constraint("Tangent", 41, 2, 42, 1))
sketch1.addConstraint(Sketcher.Constraint("Tangent", 42, 2, 43, 1))
sketch1.addConstraint(Sketcher.Constraint("Tangent", 43, 2, 44, 1))
sketch1.addConstraint(Sketcher.Constraint("Tangent", 44, 2, 45, 1))
sketch1.addConstraint(Sketcher.Constraint("Tangent", 45, 2, 46, 1))
sketch1.addConstraint(Sketcher.Constraint("Tangent", 46, 2, 47, 1))
sketch1.addConstraint(Sketcher.Constraint("Tangent", 47, 2, 48, 1))
sketch1.addConstraint(Sketcher.Constraint("Tangent", 48, 2, 49, 1))
sketch1.addConstraint(Sketcher.Constraint("Tangent", 49, 2, 50, 2))
sketch1.addConstraint(Sketcher.Constraint("Tangent", 50, 1, 51, 1))
sketch1.addConstraint(Sketcher.Constraint("Tangent", 51, 2, 52, 2))
sketch1.addConstraint(Sketcher.Constraint("Tangent", 52, 1, 53, 1))
sketch1.addConstraint(Sketcher.Constraint("Tangent", 53, 2, 54, 2))
sketch1.addConstraint(Sketcher.Constraint("Tangent", 54, 1, 55, 1))
sketch1.addConstraint(Sketcher.Constraint("Tangent", 55, 2, 56, 2))
sketch1.addConstraint(Sketcher.Constraint("Tangent", 56, 1, 57, 1))
sketch1.addConstraint(Sketcher.Constraint("Tangent", 57, 2, 58, 2))
sketch1.addConstraint(Sketcher.Constraint("Tangent", 58, 1, 59, 1))
sketch1.addConstraint(Sketcher.Constraint("Tangent", 59, 2, 60, 2))
sketch1.addConstraint(Sketcher.Constraint("Tangent", 60, 1, 61, 1))
sketch1.addConstraint(Sketcher.Constraint("Tangent", 61, 2, 62, 1))
sketch1.addConstraint(Sketcher.Constraint("Tangent", 62, 2, 63, 1))
sketch1.addConstraint(Sketcher.Constraint("Tangent", 63, 2, 64, 1))
sketch1.addConstraint(Sketcher.Constraint("Tangent", 64, 2, 65, 1))
sketch1.addConstraint(Sketcher.Constraint("Tangent", 65, 2, 66, 1))
sketch1.addConstraint(Sketcher.Constraint("Tangent", 66, 2, 67, 1))
sketch1.addConstraint(Sketcher.Constraint("Tangent", 67, 2, 68, 1))
sketch1.addConstraint(Sketcher.Constraint("Tangent", 68, 2, 69, 1))
sketch1.addConstraint(Sketcher.Constraint("Tangent", 69, 2, 70, 1))
sketch1.addConstraint(Sketcher.Constraint("Tangent", 70, 2, 71, 1))
sketch1.addConstraint(Sketcher.Constraint("Tangent", 71, 2, 72, 2))
sketch1.addConstraint(Sketcher.Constraint("Tangent", 72, 1, 73, 1))
sketch1.addConstraint(Sketcher.Constraint("Tangent", 73, 2, 74, 2))
sketch1.addConstraint(Sketcher.Constraint("Tangent", 74, 1, 75, 1))
sketch1.addConstraint(Sketcher.Constraint("Tangent", 75, 2, 76, 2))
sketch1.addConstraint(Sketcher.Constraint("Tangent", 76, 1, 77, 1))
sketch1.addConstraint(Sketcher.Constraint("Tangent", 77, 2, 78, 2))
sketch1.addConstraint(Sketcher.Constraint("Tangent", 78, 1, 79, 1))
sketch1.addConstraint(Sketcher.Constraint("Tangent", 79, 2, 80, 2))
sketch1.addConstraint(Sketcher.Constraint("Tangent", 80, 1, 81, 1))
sketch1.addConstraint(Sketcher.Constraint("Tangent", 81, 2, 82, 2))
sketch1.addConstraint(Sketcher.Constraint("Tangent", 82, 1, 83, 1))
sketch1.addConstraint(Sketcher.Constraint("Tangent", 83, 2, 84, 1))
sketch1.addConstraint(Sketcher.Constraint("Tangent", 84, 2, 85, 1))
sketch1.addConstraint(Sketcher.Constraint("Tangent", 85, 2, 86, 1))
sketch1.addConstraint(Sketcher.Constraint("Tangent", 86, 2, 87, 1))
sketch1.addConstraint(Sketcher.Constraint("Tangent", 87, 2, 0, 1))
sketch1.addConstraint(Sketcher.Constraint("Vertical", 1))
sketch1.addConstraint(Sketcher.Constraint("Horizontal", 3))
sketch1.addConstraint(Sketcher.Constraint("Vertical", 5))
sketch1.addConstraint(Sketcher.Constraint("Horizontal", 7))
sketch1.addConstraint(Sketcher.Constraint("Vertical", 11))
sketch1.addConstraint(Sketcher.Constraint("Horizontal", 15))
sketch1.addConstraint(Sketcher.Constraint("Vertical", 17))
sketch1.addConstraint(Sketcher.Constraint("Horizontal", 19))
sketch1.addConstraint(Sketcher.Constraint("Vertical", 21))
sketch1.addConstraint(Sketcher.Constraint("Horizontal", 23))
sketch1.addConstraint(Sketcher.Constraint("Vertical", 25))
sketch1.addConstraint(Sketcher.Constraint("Horizontal", 27))
sketch1.addConstraint(Sketcher.Constraint("Vertical", 29))
sketch1.addConstraint(Sketcher.Constraint("Horizontal", 33))
sketch1.addConstraint(Sketcher.Constraint("Vertical", 37))
sketch1.addConstraint(Sketcher.Constraint("Horizontal", 39))
sketch1.addConstraint(Sketcher.Constraint("Vertical", 41))
sketch1.addConstraint(Sketcher.Constraint("Horizontal", 43))
sketch1.addConstraint(Sketcher.Constraint("Vertical", 45))
sketch1.addConstraint(Sketcher.Constraint("Horizontal", 47))
sketch1.addConstraint(Sketcher.Constraint("Vertical", 49))
sketch1.addConstraint(Sketcher.Constraint("Horizontal", 51))
sketch1.addConstraint(Sketcher.Constraint("Vertical", 55))
sketch1.addConstraint(Sketcher.Constraint("Horizontal", 59))
sketch1.addConstraint(Sketcher.Constraint("Vertical", 61))
sketch1.addConstraint(Sketcher.Constraint("Horizontal", 63))
sketch1.addConstraint(Sketcher.Constraint("Vertical", 65))
sketch1.addConstraint(Sketcher.Constraint("Horizontal", 67))
sketch1.addConstraint(Sketcher.Constraint("Vertical", 69))
sketch1.addConstraint(Sketcher.Constraint("Horizontal", 71))
sketch1.addConstraint(Sketcher.Constraint("Vertical", 73))
sketch1.addConstraint(Sketcher.Constraint("Horizontal", 77))
sketch1.addConstraint(Sketcher.Constraint("Vertical", 81))
sketch1.addConstraint(Sketcher.Constraint("Horizontal", 83))
sketch1.addConstraint(Sketcher.Constraint("Vertical", 85))
sketch1.addConstraint(Sketcher.Constraint("Horizontal", 87))
sketch1.addConstraint(Sketcher.Constraint("Coincident", 22, 3, -1, 1))
sketch1.addConstraint(Sketcher.Constraint("Equal", 2, 4))
sketch1.addConstraint(Sketcher.Constraint("Equal", 10, 12))
sketch1.addConstraint(Sketcher.Constraint("Equal", 8, 14))
sketch1.addConstraint(Sketcher.Constraint("Equal", 6, 16))
sketch1.addConstraint(Sketcher.Constraint("Equal", 4, 18))
sketch1.addConstraint(Sketcher.Constraint("Equal", 18, 20))
sketch1.addConstraint(Sketcher.Constraint("Equal", 0, 22))
sketch1.addConstraint(Sketcher.Constraint("Equal", 20, 24))
sketch1.addConstraint(Sketcher.Constraint("Equal", 24, 26))
sketch1.addConstraint(Sketcher.Constraint("Equal", 16, 28))
sketch1.addConstraint(Sketcher.Constraint("Equal", 14, 30))
sketch1.addConstraint(Sketcher.Constraint("Equal", 12, 32))
sketch1.addConstraint(Sketcher.Constraint("Equal", 32, 34))
sketch1.addConstraint(Sketcher.Constraint("Equal", 30, 36))
sketch1.addConstraint(Sketcher.Constraint("Equal", 28, 38))
sketch1.addConstraint(Sketcher.Constraint("Equal", 26, 40))
sketch1.addConstraint(Sketcher.Constraint("Equal", 40, 42))
sketch1.addConstraint(Sketcher.Constraint("Equal", 22, 44))
sketch1.addConstraint(Sketcher.Constraint("Equal", 42, 46))
sketch1.addConstraint(Sketcher.Constraint("Equal", 46, 48))
sketch1.addConstraint(Sketcher.Constraint("Equal", 38, 50))
sketch1.addConstraint(Sketcher.Constraint("Equal", 36, 52))
sketch1.addConstraint(Sketcher.Constraint("Equal", 34, 54))
sketch1.addConstraint(Sketcher.Constraint("Equal", 54, 56))
sketch1.addConstraint(Sketcher.Constraint("Equal", 52, 58))
sketch1.addConstraint(Sketcher.Constraint("Equal", 50, 60))
sketch1.addConstraint(Sketcher.Constraint("Equal", 48, 62))
sketch1.addConstraint(Sketcher.Constraint("Equal", 62, 64))
sketch1.addConstraint(Sketcher.Constraint("Equal", 44, 66))
sketch1.addConstraint(Sketcher.Constraint("Equal", 64, 68))
sketch1.addConstraint(Sketcher.Constraint("Equal", 68, 70))
sketch1.addConstraint(Sketcher.Constraint("Equal", 60, 72))
sketch1.addConstraint(Sketcher.Constraint("Equal", 58, 74))
sketch1.addConstraint(Sketcher.Constraint("Equal", 56, 76))
sketch1.addConstraint(Sketcher.Constraint("Equal", 76, 78))
sketch1.addConstraint(Sketcher.Constraint("Equal", 74, 80))
sketch1.addConstraint(Sketcher.Constraint("Equal", 72, 82))
sketch1.addConstraint(Sketcher.Constraint("Equal", 70, 84))
sketch1.addConstraint(Sketcher.Constraint("Equal", 84, 86))
sketch1.addConstraint(Sketcher.Constraint("PointOnObject", 0, 3, -2))
sketch1.addConstraint(Sketcher.Constraint("PointOnObject", 44, 3, -1))
sketch1.addConstraint(Sketcher.Constraint("Perpendicular", 9, 13))
sketch1.addConstraint(Sketcher.Constraint("Parallel", 13, 31))
sketch1.addConstraint(Sketcher.Constraint("Perpendicular", 31, 35))
sketch1.addConstraint(Sketcher.Constraint("Parallel", 35, 53))
sketch1.addConstraint(Sketcher.Constraint("Perpendicular", 53, 57))
sketch1.addConstraint(Sketcher.Constraint("Parallel", 57, 75))
sketch1.addConstraint(Sketcher.Constraint("Perpendicular", 75, 79))
sketch1.addConstraint(Sketcher.Constraint("Horizontal", 30, 3, 36, 3))
sketch1.addConstraint(Sketcher.Constraint("Horizontal", 28, 3, 38, 3))
sketch1.addConstraint(Sketcher.Constraint("Horizontal", 20, 3, 46, 3))
sketch1.addConstraint(Sketcher.Constraint("Horizontal", 16, 3, 50, 3))
sketch1.addConstraint(Sketcher.Constraint("Horizontal", 12, 3, 54, 3))
sketch1.addConstraint(Sketcher.Constraint("Horizontal", 10, 3, 56, 3))
sketch1.addConstraint(Sketcher.Constraint("Horizontal", 8, 3, 58, 3))
sketch1.addConstraint(Sketcher.Constraint("Horizontal", 4, 3, 62, 3))
sketch1.addConstraint(Sketcher.Constraint("Horizontal", 0, 3, 66, 3))
sketch1.addConstraint(Sketcher.Constraint("Horizontal", 74, 3, 80, 3))
sketch1.addConstraint(Sketcher.Constraint("Horizontal", 72, 3, 82, 3))
sketch1.addConstraint(Sketcher.Constraint("Horizontal", 31, 2, 34, 1))
sketch1.addConstraint(Sketcher.Constraint("Vertical", 8, 3, 14, 3))
sketch1.addConstraint(Sketcher.Constraint("Vertical", 6, 3, 16, 3))
sketch1.addConstraint(Sketcher.Constraint("Vertical", 50, 3, 60, 3))
sketch1.addConstraint(Sketcher.Constraint("Vertical", 46, 3, 64, 3))
sketch1.addConstraint(Sketcher.Constraint("Vertical", 42, 3, 68, 3))
sketch1.addConstraint(Sketcher.Constraint("Vertical", 38, 3, 72, 3))
sketch1.addConstraint(Sketcher.Constraint("Vertical", 34, 3, 76, 3))
sketch1.addConstraint(Sketcher.Constraint("Vertical", 32, 3, 78, 3))
sketch1.addConstraint(Sketcher.Constraint("Vertical", 26, 3, 84, 3))
sketch1.addConstraint(Sketcher.Constraint("Equal", 27, 39))
sketch1.addConstraint(Sketcher.Constraint("Equal", 23, 43))
sketch1.addConstraint(Sketcher.Constraint("Equal", 19, 47))
sketch1.addConstraint(Sketcher.Constraint("Equal", 15, 51))
sketch1.addConstraint(Sketcher.Constraint("Equal", 87, 1))
sketch1.addConstraint(Sketcher.Constraint("Equal", 83, 5))
sketch1.addConstraint(Sketcher.Constraint("Equal", 77, 11))
sketch1.addConstraint(Sketcher.Constraint("Equal", 5, 17))
sketch1.addConstraint(Sketcher.Constraint("Equal", 1, 21))
sketch1.addConstraint(Sketcher.Constraint("Equal", 63, 25))
sketch1.addConstraint(Sketcher.Constraint("Equal", 59, 29))
sketch1.addConstraint(Sketcher.Constraint("Equal", 41, 69))
sketch1.addConstraint(Sketcher.Constraint("Equal", 37, 73))
sketch1.addConstraint(Sketcher.Constraint("Equal", 13, 31))
sketch1.addConstraint(Sketcher.Constraint("Radius", 0, Q("0.125 in")))
sketch1.addConstraint(Sketcher.Constraint("Radius", 2, Q("0.062 in")))
sketch1.addConstraint(Sketcher.Constraint("Radius", 6, Q("0.035 in")))
sketch1.addConstraint(Sketcher.Constraint("Radius", 8, Q("0.0349999 in")))
sketch1.addConstraint(Sketcher.Constraint("Radius", 10, Q("0.187 in")))
sketch1.addConstraint(Sketcher.Constraint("DistanceX", 3, 1, 3, 2, Q("0.036 in")))
sketch1.addConstraint(Sketcher.Constraint("DistanceX", 23, 1, 23, 2, Q("0.403 in")))
sketch1.addConstraint(Sketcher.Constraint("DistanceX", 27, 2, 27, 1, Q("0.148 in")))
sketch1.addConstraint(Sketcher.Constraint("DistanceY", -1, 1, 0, 3, Q("1.25 in")))
sketch1.addConstraint(Sketcher.Constraint("DistanceX", 7, 1, 7, 2, Q("0.568082 mm")))
sketch1.addConstraint(Sketcher.Constraint("DistanceX", 33, 1, 33, 2, Q("4.057086 mm")))
pad1 = body.newObject("PartDesign::Pad", "Pad")
pad1.Profile = sketch1
pad1.Length = Q("6 in")
pad1.Reversed = True

doc.recompute()
